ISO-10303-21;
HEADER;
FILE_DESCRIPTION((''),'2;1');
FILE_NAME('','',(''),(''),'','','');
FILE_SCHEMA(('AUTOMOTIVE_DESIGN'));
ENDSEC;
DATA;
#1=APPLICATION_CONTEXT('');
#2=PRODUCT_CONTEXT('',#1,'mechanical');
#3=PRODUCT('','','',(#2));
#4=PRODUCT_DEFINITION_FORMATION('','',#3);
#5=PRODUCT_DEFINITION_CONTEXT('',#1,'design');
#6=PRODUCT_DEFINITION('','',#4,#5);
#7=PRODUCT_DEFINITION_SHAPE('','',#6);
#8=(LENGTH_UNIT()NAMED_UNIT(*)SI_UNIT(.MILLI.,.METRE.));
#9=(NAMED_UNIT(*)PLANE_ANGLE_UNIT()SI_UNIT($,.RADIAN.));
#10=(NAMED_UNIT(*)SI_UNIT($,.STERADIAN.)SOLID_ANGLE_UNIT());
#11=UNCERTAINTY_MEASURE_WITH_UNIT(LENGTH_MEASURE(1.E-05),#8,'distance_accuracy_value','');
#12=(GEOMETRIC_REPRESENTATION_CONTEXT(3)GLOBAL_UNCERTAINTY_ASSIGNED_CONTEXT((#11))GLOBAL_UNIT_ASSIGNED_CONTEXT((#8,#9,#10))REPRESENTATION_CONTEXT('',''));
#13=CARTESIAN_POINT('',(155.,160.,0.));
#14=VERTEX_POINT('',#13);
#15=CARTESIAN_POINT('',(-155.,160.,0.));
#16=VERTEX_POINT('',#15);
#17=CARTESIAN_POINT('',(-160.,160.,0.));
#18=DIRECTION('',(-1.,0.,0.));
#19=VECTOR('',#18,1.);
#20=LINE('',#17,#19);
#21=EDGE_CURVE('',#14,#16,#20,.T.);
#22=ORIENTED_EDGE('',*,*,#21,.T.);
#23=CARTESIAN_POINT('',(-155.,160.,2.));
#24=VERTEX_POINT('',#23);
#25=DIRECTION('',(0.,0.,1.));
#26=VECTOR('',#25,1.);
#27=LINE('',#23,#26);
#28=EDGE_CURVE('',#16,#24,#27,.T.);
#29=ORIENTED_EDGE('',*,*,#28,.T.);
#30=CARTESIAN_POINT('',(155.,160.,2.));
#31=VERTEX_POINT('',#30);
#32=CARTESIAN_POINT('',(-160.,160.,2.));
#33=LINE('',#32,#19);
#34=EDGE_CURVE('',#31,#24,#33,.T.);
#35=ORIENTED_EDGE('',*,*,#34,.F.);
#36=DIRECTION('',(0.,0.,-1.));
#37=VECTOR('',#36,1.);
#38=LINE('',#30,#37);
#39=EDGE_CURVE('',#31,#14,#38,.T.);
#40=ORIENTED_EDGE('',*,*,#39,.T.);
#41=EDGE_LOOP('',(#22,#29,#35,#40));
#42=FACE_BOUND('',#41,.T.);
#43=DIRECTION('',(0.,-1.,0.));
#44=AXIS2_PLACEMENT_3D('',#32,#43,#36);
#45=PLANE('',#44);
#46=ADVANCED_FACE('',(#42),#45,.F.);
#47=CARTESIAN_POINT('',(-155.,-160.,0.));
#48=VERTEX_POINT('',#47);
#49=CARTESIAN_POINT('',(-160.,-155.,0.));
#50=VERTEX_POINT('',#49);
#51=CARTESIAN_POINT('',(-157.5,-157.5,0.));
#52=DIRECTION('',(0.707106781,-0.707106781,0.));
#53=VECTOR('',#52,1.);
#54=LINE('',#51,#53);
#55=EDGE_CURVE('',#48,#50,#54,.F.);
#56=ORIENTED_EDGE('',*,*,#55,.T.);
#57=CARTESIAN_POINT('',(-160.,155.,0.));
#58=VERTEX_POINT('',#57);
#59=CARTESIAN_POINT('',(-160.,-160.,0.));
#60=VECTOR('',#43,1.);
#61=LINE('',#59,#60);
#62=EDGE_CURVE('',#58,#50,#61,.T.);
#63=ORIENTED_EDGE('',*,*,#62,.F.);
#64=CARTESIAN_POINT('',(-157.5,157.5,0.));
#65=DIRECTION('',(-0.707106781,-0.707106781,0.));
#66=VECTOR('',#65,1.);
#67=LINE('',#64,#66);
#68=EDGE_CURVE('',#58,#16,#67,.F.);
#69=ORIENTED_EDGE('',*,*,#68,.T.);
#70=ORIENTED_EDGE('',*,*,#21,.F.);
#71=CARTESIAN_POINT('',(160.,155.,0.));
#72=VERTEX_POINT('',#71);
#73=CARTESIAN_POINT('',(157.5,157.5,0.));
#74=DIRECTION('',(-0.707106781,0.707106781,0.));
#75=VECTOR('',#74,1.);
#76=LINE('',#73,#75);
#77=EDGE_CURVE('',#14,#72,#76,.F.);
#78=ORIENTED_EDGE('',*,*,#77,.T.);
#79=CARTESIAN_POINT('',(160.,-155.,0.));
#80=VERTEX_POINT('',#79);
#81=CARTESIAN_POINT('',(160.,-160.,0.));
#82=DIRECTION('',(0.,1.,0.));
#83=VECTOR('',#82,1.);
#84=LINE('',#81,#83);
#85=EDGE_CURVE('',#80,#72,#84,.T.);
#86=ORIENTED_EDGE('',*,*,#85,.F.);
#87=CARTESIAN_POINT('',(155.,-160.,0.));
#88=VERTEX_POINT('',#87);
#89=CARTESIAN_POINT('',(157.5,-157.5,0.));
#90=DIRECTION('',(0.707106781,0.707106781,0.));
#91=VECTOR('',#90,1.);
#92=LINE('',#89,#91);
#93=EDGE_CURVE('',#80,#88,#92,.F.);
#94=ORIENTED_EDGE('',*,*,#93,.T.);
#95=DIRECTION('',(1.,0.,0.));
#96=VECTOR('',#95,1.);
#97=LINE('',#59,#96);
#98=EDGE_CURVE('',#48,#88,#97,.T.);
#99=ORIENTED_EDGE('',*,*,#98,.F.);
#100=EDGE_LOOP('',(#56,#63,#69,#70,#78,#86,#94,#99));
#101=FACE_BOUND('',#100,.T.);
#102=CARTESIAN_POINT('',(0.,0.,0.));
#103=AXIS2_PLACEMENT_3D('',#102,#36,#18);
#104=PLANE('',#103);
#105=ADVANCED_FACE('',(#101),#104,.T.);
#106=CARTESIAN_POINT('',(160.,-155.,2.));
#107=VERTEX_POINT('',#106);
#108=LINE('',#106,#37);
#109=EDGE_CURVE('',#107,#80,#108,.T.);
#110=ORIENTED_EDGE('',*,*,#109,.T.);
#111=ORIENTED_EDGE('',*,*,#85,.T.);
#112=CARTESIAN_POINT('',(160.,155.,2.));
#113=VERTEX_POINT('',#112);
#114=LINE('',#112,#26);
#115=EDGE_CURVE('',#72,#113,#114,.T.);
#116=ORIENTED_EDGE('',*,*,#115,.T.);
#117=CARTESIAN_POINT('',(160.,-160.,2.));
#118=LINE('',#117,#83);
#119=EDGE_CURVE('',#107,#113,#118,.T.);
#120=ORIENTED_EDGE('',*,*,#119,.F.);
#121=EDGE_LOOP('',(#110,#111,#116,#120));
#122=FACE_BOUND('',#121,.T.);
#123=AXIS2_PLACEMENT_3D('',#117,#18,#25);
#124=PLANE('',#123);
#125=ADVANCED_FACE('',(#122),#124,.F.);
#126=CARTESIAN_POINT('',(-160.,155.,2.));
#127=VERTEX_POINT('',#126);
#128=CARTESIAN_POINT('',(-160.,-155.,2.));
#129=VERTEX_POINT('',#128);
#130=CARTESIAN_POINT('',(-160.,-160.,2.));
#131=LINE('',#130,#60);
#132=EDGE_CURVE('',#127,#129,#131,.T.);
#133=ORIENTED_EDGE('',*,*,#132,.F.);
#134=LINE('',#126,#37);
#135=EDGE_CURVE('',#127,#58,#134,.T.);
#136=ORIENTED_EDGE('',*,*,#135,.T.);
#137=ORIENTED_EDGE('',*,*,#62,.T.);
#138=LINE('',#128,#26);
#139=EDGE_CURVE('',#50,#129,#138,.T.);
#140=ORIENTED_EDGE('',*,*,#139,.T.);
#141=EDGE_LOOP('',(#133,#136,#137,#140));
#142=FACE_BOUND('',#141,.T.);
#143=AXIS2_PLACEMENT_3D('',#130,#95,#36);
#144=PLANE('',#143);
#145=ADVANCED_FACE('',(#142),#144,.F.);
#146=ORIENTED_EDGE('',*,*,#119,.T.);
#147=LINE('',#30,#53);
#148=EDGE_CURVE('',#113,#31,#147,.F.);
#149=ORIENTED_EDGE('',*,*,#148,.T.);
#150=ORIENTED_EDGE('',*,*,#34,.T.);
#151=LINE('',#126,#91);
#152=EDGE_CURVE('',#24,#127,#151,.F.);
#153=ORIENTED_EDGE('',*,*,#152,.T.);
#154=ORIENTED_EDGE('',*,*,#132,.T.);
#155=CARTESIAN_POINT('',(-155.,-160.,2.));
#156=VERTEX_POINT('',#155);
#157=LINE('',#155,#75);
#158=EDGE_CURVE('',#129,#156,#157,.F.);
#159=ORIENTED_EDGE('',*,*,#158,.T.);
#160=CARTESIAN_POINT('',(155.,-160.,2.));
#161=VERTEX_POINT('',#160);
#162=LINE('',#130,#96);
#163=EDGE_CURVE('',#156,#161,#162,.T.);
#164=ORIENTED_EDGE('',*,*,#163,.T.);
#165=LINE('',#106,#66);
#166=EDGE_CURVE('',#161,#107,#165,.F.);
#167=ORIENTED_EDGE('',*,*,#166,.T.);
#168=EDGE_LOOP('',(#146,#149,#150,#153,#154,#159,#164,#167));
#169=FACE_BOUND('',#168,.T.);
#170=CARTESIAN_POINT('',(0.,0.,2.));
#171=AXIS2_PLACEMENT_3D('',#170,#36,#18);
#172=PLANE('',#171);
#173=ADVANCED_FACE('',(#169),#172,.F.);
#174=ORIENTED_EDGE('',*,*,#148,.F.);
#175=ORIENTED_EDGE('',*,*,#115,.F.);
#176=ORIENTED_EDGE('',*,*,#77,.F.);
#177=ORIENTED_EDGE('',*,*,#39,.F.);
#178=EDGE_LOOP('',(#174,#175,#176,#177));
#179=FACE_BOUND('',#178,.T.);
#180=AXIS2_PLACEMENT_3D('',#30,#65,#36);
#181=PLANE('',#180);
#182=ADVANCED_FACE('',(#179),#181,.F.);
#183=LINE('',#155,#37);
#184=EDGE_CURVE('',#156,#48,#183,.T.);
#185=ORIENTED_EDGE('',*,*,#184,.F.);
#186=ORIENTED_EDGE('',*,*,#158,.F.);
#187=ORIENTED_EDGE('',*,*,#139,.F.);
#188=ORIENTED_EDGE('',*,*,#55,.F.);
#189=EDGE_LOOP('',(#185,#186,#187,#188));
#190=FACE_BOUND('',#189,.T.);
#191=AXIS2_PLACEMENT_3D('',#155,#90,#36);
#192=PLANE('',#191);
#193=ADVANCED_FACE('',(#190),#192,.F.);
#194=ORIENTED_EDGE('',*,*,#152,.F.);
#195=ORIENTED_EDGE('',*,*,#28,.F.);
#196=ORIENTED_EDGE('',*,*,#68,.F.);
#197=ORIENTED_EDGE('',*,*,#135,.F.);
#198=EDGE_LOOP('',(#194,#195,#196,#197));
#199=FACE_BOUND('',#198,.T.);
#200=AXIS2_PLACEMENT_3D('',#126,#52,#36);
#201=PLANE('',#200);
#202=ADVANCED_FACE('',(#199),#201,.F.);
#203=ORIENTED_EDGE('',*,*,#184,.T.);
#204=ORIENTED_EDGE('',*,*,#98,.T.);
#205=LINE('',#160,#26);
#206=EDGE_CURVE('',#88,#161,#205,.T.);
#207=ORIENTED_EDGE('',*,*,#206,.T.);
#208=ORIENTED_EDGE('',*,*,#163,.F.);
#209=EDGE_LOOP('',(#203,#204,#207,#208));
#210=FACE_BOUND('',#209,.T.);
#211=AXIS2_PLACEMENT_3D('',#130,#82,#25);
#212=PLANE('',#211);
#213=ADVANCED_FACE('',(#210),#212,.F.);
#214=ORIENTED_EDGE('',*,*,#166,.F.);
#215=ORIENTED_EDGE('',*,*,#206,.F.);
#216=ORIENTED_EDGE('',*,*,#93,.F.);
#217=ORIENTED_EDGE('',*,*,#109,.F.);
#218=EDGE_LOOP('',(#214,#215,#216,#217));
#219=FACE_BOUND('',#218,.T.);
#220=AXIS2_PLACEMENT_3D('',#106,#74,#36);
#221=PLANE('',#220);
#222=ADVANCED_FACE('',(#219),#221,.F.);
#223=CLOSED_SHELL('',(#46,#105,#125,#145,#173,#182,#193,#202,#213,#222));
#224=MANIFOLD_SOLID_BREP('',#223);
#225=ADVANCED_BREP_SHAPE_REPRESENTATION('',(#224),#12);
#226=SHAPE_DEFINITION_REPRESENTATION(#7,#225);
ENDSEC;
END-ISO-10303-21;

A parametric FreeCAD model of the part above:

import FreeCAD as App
import Part
import Sketcher

V = App.Vector


def edges_at(feature, points):
    """Names of the edges that pass closest to the given points."""
    edges = feature.Shape.Edges
    near = lambda p: min(range(len(edges)), key=lambda i: edges[i].distToShape(Part.Vertex(*p))[0])
    return sorted({f"Edge{near(p) + 1}" for p in points})

doc = App.newDocument("Part")
body = doc.addObject("PartDesign::Body", "Body")

# Sketch on XY plane
sketch1 = body.newObject("Sketcher::SketchObject", "Sketch")
sketch1.AttachmentSupport = (doc.getObject("XY_Plane"), [""])
sketch1.MapMode = "FlatFace"
sketch1.addGeometry([
    Part.LineSegment(V(-160, 160, 0), V(-160, -160, 0)),
    Part.LineSegment(V(-160, -160, 0), V(160, -160, 0)),
    Part.LineSegment(V(160, -160, 0), V(160, 160, 0)),
    Part.LineSegment(V(160, 160, 0), V(-160, 160, 0)),
], False)
sketch1.addConstraint([
    Sketcher.Constraint("Coincident", 0, 2, 1, 1),
    Sketcher.Constraint("Coincident", 1, 2, 2, 1),
    Sketcher.Constraint("Coincident", 2, 2, 3, 1),
    Sketcher.Constraint("Coincident", 3, 2, 0, 1),
    Sketcher.Constraint("Vertical", 0),
    Sketcher.Constraint("Horizontal", 1),
    Sketcher.Constraint("Vertical", 2),
    Sketcher.Constraint("Horizontal", 3),
    Sketcher.Constraint("Symmetric", 0, 2, 2, 2, -1, 1),
    Sketcher.Constraint("Equal", 3, 0),
    Sketcher.Constraint("DistanceX", 1, 1, 1, 2, 320.0),
])
pad1 = body.newObject("PartDesign::Pad", "Pad")
pad1.Profile = sketch1
pad1.Length = 2
doc.recompute()

chamfer = body.newObject("PartDesign::Chamfer", "Chamfer")
chamfer.Base = (pad1, edges_at(pad1, [
    (160, -160, 1),
    (-160, -160, 1),
    (-160, 160, 1),
    (160, 160, 1),
]))
chamfer.Size = 5

doc.recompute()
